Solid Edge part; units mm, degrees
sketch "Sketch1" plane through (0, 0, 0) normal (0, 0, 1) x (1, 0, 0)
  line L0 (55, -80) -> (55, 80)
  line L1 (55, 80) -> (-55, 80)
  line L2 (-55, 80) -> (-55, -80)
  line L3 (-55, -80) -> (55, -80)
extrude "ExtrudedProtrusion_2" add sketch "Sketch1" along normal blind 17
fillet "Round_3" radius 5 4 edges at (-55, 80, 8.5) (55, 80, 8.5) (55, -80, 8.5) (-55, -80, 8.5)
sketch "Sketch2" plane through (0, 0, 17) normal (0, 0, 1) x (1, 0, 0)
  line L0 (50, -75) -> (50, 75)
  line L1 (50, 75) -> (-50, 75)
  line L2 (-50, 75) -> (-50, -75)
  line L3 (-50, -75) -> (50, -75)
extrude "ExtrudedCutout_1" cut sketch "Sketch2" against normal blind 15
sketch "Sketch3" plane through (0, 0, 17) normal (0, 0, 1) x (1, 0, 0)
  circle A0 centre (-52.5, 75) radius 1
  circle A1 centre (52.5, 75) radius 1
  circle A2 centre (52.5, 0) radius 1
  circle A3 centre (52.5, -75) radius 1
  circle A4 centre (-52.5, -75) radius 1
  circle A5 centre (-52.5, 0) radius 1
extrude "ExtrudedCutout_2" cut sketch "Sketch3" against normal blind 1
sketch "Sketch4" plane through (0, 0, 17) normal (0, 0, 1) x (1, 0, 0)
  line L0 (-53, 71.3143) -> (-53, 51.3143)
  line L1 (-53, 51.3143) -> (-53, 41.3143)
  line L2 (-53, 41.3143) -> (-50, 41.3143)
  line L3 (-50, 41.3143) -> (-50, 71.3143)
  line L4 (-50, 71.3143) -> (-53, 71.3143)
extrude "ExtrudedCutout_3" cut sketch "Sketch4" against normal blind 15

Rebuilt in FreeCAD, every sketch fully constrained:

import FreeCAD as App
import Part
import Sketcher


def edges_at(feature, points):
    """Names of the edges that pass closest to the given points."""
    edges = feature.Shape.Edges
    near = lambda p: min(range(len(edges)), key=lambda i: edges[i].distToShape(Part.Vertex(*p))[0])
    return sorted({f"Edge{near(p) + 1}" for p in points})


def add_polygon(sketch, points):
    """Adds a closed chain of lines whose ends are joined by coincident constraints."""
    first, n = sketch.GeometryCount, len(points)
    for a, b in zip(points, points[1:] + points[:1]):
        sketch.addGeometry(Part.LineSegment(App.Vector(*a, 0), App.Vector(*b, 0)), False)
    for i in range(n):
        sketch.addConstraint(Sketcher.Constraint("Coincident", first + i, 2, first + (i + 1) % n, 1))

doc = App.newDocument("Part")
params = doc.addObject("Spreadsheet::Sheet", "Params")
for row, (alias, value) in enumerate([
    ("sketch1_width", "110 mm"),
    ("sketch1_height", "160 mm"),
    ("pad1_length", "17 mm"),
    ("fillet_radius", "5 mm"),
    ("sketch2_width", "100 mm"),
    ("sketch2_height", "150 mm"),
    ("pocket1_length", "15 mm"),
    ("sketch3_diameter", "2 mm"),
    ("pocket2_length", "1 mm"),
    ("sketch4_width", "3 mm"),
    ("sketch4_height", "30 mm"),
    ("pocket3_length", "15 mm"),
], start=1):
    params.set(f"A{row}", alias)
    params.set(f"B{row}", "=" + value)
    params.setAlias(f"B{row}", alias)

body = doc.addObject("PartDesign::Body", "Body")

sketch1 = body.newObject("Sketcher::SketchObject", "Sketch")
sketch1.AttachmentSupport = (doc.getObject("XY_Plane"), [""])
sketch1.MapMode = "FlatFace"
add_polygon(sketch1, [(-55, -80), (55, -80), (55, 80), (-55, 80)])
sketch1.addConstraint(Sketcher.Constraint("Horizontal", 0))
sketch1.addConstraint(Sketcher.Constraint("Vertical", 1))
sketch1.addConstraint(Sketcher.Constraint("Horizontal", 2))
sketch1.addConstraint(Sketcher.Constraint("Vertical", 3))
sketch1.addConstraint(Sketcher.Constraint("Symmetric", 0, 2, 2, 2, -1, 1))
sketch1.addConstraint(Sketcher.Constraint("DistanceX", 0, 1, 0, 2, 110.0))
sketch1.addConstraint(Sketcher.Constraint("DistanceY", 1, 1, 1, 2, 160.0))
sketch1.setExpression("Constraints[9]", "Params.sketch1_width")
sketch1.setExpression("Constraints[10]", "Params.sketch1_height")
pad1 = body.newObject("PartDesign::Pad", "Pad")
pad1.Profile = sketch1
pad1.setExpression("Length", "Params.pad1_length")
doc.recompute()

fillet = body.newObject("PartDesign::Fillet", "Fillet")
fillet.Base = (pad1, edges_at(pad1, [
    (-55, 80, 8.5),
    (55, 80, 8.5),
    (55, -80, 8.5),
    (-55, -80, 8.5),
]))
fillet.setExpression("Radius", "Params.fillet_radius")

sketch2 = body.newObject("Sketcher::SketchObject", "Sketch001")
sketch2.AttachmentSupport = (doc.getObject("XY_Plane"), [""])
sketch2.MapMode = "FlatFace"
sketch2.AttachmentOffset = App.Placement(App.Vector(0, 0, 17), App.Rotation())
add_polygon(sketch2, [(-50, -75), (50, -75), (50, 75), (-50, 75)])
sketch2.addConstraint(Sketcher.Constraint("Horizontal", 0))
sketch2.addConstraint(Sketcher.Constraint("Vertical", 1))
sketch2.addConstraint(Sketcher.Constraint("Horizontal", 2))
sketch2.addConstraint(Sketcher.Constraint("Vertical", 3))
sketch2.addConstraint(Sketcher.Constraint("Symmetric", 0, 2, 2, 2, -1, 1))
sketch2.addConstraint(Sketcher.Constraint("DistanceX", 0, 1, 0, 2, 100.0))
sketch2.addConstraint(Sketcher.Constraint("DistanceY", 1, 1, 1, 2, 150.0))
sketch2.setExpression("Constraints[9]", "Params.sketch2_width")
sketch2.setExpression("Constraints[10]", "Params.sketch2_height")
pocket1 = body.newObject("PartDesign::Pocket", "Pocket")
pocket1.Profile = sketch2
pocket1.setExpression("Length", "Params.pocket1_length")

sketch3 = body.newObject("Sketcher::SketchObject", "Sketch002")
sketch3.AttachmentSupport = (doc.getObject("XY_Plane"), [""])
sketch3.MapMode = "FlatFace"
sketch3.AttachmentOffset = App.Placement(App.Vector(0, 0, 17), App.Rotation())
sketch3.addGeometry(Part.Circle(App.Vector(-52.5, 75, 0), App.Vector(0, 0, 1), 1), False)
sketch3.addGeometry(Part.Circle(App.Vector(52.5, 75, 0), App.Vector(0, 0, 1), 1), False)
sketch3.addGeometry(Part.Circle(App.Vector(52.5, 0, 0), App.Vector(0, 0, 1), 1), False)
sketch3.addGeometry(Part.Circle(App.Vector(52.5, -75, 0), App.Vector(0, 0, 1), 1), False)
sketch3.addGeometry(Part.Circle(App.Vector(-52.5, -75, 0), App.Vector(0, 0, 1), 1), False)
sketch3.addGeometry(Part.Circle(App.Vector(-52.5, 0, 0), App.Vector(0, 0, 1), 1), False)
sketch3.addConstraint(Sketcher.Constraint("Equal", 0, 1))
sketch3.addConstraint(Sketcher.Constraint("Equal", 1, 2))
sketch3.addConstraint(Sketcher.Constraint("Equal", 2, 3))
sketch3.addConstraint(Sketcher.Constraint("Equal", 3, 4))
sketch3.addConstraint(Sketcher.Constraint("Equal", 4, 5))
sketch3.addConstraint(Sketcher.Constraint("Symmetric", 0, 3, 3, 3, -1, 1))
sketch3.addConstraint(Sketcher.Constraint("Symmetric", 1, 3, 4, 3, -1, 1))
sketch3.addConstraint(Sketcher.Constraint("Symmetric", 2, 3, 5, 3, -1, 1))
sketch3.addConstraint(Sketcher.Constraint("Symmetric", 0, 3, 1, 3, -2))
sketch3.addConstraint(Sketcher.Constraint("PointOnObject", 2, 3, -1))
sketch3.addConstraint(Sketcher.Constraint("Vertical", 1, 3, 2, 3))
sketch3.addConstraint(Sketcher.Constraint("Diameter", 0, 2.0))
sketch3.addConstraint(Sketcher.Constraint("DistanceY", -1, 1, 0, 3, 75.0))
sketch3.addConstraint(Sketcher.Constraint("DistanceX", 0, 3, 1, 3, 105.0))
sketch3.setExpression("Constraints[11]", "Params.sketch3_diameter")
pocket2 = body.newObject("PartDesign::Pocket", "Pocket001")
pocket2.Profile = sketch3
pocket2.setExpression("Length", "Params.pocket2_length")

sketch4 = body.newObject("Sketcher::SketchObject", "Sketch003")
sketch4.AttachmentSupport = (doc.getObject("XY_Plane"), [""])
sketch4.MapMode = "FlatFace"
sketch4.AttachmentOffset = App.Placement(App.Vector(0, 0, 17), App.Rotation())
add_polygon(sketch4, [(-50, 71.3), (-53, 71.3), (-53, 41.3), (-50, 41.3)])
sketch4.addConstraint(Sketcher.Constraint("Horizontal", 0))
sketch4.addConstraint(Sketcher.Constraint("Vertical", 1))
sketch4.addConstraint(Sketcher.Constraint("Horizontal", 2))
sketch4.addConstraint(Sketcher.Constraint("Vertical", 3))
sketch4.addConstraint(Sketcher.Constraint("DistanceX", 0, 2, 0, 1, 3.0))
sketch4.addConstraint(Sketcher.Constraint("DistanceY", 1, 2, 1, 1, 30.0))
sketch4.addConstraint(Sketcher.Constraint("DistanceX", 0, 2, -1, 1, 53.0))
sketch4.addConstraint(Sketcher.Constraint("DistanceY", -1, 1, 0, 2, 71.3143))
sketch4.setExpression("Constraints[8]", "Params.sketch4_width")
sketch4.setExpression("Constraints[9]", "Params.sketch4_height")
pocket3 = body.newObject("PartDesign::Pocket", "Pocket002")
pocket3.Profile = sketch4
pocket3.setExpression("Length", "Params.pocket3_length")

doc.recompute()
